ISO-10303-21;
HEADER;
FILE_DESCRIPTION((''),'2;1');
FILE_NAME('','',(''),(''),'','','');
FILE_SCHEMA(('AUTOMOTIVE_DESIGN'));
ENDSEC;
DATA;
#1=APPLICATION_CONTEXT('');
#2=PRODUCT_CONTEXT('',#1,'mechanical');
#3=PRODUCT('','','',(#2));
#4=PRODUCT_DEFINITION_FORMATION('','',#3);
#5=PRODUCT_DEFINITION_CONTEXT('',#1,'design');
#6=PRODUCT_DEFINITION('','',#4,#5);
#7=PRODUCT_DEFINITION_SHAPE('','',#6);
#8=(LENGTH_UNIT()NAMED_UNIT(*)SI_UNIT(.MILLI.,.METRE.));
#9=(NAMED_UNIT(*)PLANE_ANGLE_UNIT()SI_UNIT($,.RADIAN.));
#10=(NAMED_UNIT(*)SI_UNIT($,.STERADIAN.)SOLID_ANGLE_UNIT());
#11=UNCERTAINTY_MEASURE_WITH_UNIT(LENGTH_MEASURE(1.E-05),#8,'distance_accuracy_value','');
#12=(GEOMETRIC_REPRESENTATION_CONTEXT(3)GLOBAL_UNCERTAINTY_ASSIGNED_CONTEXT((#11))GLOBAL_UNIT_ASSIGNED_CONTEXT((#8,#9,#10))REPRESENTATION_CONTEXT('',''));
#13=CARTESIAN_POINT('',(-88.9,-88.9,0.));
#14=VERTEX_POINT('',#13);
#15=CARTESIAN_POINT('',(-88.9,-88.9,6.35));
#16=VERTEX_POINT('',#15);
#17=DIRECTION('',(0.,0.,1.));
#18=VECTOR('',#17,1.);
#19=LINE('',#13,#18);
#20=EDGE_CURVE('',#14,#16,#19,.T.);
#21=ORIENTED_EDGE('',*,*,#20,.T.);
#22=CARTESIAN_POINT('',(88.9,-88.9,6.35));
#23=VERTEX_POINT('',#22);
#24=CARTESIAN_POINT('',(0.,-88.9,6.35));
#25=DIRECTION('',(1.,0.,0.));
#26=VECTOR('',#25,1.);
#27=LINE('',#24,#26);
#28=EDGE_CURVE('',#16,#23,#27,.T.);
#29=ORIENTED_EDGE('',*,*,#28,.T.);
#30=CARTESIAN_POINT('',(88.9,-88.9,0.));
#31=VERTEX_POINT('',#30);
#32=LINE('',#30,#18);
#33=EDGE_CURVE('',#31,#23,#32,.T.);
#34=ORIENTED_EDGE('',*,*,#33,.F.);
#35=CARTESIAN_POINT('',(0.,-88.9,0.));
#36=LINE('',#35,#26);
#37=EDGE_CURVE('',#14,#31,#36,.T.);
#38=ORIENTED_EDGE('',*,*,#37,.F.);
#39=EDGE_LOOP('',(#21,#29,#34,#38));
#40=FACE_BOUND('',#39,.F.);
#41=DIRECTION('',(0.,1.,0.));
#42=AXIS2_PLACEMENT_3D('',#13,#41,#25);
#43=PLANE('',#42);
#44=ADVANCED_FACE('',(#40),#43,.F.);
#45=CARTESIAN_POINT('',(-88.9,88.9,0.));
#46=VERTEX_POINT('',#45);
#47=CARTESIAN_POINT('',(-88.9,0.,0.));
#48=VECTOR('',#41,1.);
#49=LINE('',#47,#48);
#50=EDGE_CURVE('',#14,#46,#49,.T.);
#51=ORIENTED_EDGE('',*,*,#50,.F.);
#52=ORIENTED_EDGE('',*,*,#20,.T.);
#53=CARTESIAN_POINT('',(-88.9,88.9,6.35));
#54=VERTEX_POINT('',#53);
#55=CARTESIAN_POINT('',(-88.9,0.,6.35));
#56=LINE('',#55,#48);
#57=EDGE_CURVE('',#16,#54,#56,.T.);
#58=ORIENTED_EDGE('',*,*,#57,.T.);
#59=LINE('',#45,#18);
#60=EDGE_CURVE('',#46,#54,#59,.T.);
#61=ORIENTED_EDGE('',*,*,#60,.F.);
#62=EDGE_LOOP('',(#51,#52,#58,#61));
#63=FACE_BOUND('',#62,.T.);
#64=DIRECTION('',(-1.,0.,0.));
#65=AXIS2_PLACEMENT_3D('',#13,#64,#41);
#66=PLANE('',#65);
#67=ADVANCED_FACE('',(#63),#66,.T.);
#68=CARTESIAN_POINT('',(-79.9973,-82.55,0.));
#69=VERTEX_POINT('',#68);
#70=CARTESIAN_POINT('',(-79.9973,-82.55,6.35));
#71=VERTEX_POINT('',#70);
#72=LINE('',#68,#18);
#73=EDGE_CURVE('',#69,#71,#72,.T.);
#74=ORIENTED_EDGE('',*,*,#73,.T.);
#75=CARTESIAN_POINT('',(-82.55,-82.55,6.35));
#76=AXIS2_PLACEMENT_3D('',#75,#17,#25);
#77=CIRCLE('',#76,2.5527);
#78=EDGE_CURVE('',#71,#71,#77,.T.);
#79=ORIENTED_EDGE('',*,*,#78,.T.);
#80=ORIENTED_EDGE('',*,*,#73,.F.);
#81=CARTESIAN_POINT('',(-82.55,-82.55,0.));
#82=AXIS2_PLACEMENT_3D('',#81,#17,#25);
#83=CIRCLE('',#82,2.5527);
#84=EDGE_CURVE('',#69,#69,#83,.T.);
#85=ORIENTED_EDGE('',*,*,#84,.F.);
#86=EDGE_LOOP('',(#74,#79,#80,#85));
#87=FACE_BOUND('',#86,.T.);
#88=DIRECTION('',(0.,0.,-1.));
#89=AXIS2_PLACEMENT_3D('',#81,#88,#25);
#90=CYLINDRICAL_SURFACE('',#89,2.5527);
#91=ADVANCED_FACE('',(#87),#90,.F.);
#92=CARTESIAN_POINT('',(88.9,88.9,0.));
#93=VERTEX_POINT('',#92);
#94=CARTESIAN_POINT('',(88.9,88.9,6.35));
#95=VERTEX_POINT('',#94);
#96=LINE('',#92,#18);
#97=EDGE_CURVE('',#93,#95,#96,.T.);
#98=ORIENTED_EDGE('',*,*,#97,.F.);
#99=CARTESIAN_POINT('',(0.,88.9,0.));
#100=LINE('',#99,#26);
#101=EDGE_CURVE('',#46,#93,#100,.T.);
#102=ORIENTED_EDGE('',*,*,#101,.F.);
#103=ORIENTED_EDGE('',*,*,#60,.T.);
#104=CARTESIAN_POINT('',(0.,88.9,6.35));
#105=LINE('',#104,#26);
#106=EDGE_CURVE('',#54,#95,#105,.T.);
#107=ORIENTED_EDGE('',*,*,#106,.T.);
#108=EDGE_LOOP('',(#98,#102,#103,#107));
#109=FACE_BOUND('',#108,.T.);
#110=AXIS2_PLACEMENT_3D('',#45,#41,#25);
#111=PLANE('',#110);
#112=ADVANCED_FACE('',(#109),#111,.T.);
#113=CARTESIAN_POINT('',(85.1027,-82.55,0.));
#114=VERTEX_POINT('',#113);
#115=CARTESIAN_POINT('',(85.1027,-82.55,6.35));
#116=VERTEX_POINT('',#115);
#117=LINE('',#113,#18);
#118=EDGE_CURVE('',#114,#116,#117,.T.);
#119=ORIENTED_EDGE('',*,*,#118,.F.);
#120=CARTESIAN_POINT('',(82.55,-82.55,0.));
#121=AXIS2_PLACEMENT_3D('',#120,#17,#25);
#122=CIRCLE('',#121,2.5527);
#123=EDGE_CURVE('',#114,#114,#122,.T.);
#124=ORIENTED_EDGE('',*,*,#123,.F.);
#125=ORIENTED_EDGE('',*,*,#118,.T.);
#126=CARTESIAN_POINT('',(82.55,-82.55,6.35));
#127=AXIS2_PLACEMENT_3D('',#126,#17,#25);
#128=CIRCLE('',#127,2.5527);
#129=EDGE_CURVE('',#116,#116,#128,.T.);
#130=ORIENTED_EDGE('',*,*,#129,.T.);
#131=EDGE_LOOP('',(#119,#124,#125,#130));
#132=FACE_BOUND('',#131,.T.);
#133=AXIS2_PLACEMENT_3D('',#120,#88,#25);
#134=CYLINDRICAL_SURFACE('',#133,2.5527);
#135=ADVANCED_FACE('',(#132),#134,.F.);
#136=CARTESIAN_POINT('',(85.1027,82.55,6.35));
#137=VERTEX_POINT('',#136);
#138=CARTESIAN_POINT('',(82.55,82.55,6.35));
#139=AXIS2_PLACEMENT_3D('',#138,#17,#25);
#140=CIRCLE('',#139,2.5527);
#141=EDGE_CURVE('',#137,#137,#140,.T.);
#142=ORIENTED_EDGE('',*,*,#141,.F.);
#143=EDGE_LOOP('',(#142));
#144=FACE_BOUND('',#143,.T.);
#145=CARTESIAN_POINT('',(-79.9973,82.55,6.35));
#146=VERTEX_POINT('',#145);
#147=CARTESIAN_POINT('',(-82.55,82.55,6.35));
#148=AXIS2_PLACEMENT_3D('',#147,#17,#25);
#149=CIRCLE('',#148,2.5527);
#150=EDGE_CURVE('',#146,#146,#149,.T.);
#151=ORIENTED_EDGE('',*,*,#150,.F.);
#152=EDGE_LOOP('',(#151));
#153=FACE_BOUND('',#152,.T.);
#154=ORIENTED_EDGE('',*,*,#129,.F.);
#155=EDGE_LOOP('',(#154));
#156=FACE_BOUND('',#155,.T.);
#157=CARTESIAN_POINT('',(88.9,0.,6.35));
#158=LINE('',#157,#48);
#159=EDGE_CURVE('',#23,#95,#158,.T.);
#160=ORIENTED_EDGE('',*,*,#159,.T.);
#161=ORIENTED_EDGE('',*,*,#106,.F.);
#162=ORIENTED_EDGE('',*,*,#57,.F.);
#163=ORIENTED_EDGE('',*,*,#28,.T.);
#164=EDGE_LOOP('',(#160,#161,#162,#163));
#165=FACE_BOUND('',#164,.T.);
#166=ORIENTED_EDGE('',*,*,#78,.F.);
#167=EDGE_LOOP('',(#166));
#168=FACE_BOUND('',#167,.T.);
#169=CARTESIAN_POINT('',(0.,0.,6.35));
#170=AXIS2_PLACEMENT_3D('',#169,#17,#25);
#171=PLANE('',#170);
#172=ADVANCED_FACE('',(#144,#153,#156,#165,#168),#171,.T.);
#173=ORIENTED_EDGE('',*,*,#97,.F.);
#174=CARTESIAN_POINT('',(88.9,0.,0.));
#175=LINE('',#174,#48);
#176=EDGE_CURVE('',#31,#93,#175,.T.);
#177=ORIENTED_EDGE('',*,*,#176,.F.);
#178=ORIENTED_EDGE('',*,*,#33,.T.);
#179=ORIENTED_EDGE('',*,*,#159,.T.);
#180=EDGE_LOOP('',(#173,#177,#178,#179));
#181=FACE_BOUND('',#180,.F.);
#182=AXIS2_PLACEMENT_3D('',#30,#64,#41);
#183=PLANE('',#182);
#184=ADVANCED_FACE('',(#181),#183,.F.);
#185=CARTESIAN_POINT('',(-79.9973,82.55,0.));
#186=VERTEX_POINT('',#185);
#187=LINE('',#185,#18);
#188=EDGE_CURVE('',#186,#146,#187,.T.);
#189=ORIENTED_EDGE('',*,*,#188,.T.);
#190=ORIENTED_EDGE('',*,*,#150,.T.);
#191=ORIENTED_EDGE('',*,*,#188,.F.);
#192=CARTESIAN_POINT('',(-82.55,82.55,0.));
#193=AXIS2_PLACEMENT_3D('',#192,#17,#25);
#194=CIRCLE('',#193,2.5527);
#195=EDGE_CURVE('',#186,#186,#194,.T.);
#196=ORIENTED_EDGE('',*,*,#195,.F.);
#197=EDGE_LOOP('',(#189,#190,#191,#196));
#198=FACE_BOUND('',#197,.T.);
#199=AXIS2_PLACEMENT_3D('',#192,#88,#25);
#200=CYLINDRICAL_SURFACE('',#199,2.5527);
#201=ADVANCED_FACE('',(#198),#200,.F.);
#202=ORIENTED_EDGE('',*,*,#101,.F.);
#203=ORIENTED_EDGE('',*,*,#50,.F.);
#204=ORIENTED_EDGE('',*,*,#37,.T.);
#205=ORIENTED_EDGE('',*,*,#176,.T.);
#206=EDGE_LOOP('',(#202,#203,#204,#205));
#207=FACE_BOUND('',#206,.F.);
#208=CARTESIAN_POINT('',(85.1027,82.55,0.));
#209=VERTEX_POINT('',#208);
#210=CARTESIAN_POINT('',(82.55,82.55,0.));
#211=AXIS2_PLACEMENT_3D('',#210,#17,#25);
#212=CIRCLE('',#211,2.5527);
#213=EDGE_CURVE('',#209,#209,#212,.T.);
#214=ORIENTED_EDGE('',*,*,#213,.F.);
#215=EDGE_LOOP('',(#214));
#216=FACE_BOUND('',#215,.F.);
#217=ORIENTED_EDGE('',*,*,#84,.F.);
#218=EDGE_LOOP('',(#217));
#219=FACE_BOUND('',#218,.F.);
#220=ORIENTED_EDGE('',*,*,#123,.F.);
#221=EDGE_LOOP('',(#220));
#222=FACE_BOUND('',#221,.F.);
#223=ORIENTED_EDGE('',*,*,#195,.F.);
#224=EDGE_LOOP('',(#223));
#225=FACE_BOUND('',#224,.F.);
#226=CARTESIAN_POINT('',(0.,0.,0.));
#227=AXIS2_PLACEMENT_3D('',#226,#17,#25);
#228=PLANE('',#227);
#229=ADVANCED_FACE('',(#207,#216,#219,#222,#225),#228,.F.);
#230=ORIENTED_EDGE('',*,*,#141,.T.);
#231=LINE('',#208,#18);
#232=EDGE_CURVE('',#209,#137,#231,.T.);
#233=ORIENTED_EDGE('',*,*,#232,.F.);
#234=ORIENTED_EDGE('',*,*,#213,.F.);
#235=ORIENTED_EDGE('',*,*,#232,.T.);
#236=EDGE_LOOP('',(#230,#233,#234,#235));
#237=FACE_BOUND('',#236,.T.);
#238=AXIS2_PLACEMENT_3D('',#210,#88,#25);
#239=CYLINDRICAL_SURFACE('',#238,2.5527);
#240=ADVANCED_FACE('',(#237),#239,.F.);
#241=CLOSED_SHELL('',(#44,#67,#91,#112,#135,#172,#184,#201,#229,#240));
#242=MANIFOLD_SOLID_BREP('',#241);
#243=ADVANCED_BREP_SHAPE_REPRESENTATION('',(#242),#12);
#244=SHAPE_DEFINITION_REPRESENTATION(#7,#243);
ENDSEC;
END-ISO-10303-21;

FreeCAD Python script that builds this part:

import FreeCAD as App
import Part
import Sketcher

V = App.Vector
Q = App.Units.Quantity


def add_polygon(sketch, points):
    """Adds a closed chain of lines whose ends are joined by coincident constraints."""
    first, n = sketch.GeometryCount, len(points)
    for a, b in zip(points, points[1:] + points[:1]):
        sketch.addGeometry(Part.LineSegment(App.Vector(*a, 0), App.Vector(*b, 0)), False)
    for i in range(n):
        sketch.addConstraint(Sketcher.Constraint("Coincident", first + i, 2, first + (i + 1) % n, 1))

doc = App.newDocument("Part")
body = doc.addObject("PartDesign::Body", "Body")

sketch1 = doc.addObject("Sketcher::SketchObject", "Sketch")
body.addObject(sketch1)
sketch1.AttachmentSupport = (doc.XY_Plane, [""])
sketch1.MapMode = "FlatFace"
add_polygon(sketch1, [(-88.9, 88.9), (-88.9, -88.9), (88.9, -88.9), (88.9, 88.9)])
sketch1.addGeometry(Part.Circle(V(-82.55, -82.55, 0), V(0, 0, 1), 2.5527), False)
sketch1.addGeometry(Part.Circle(V(82.55, -82.55, 0), V(0, 0, 1), 2.5527), False)
sketch1.addGeometry(Part.Circle(V(-82.55, 82.55, 0), V(0, 0, 1), 2.5527), False)
sketch1.addGeometry(Part.Circle(V(82.55, 82.55, 0), V(0, 0, 1), 2.5527), False)
sketch1.addConstraint(Sketcher.Constraint("Vertical", 0))
sketch1.addConstraint(Sketcher.Constraint("Horizontal", 1))
sketch1.addConstraint(Sketcher.Constraint("Vertical", 2))
sketch1.addConstraint(Sketcher.Constraint("Horizontal", 3))
sketch1.addConstraint(Sketcher.Constraint("Equal", 4, 5))
sketch1.addConstraint(Sketcher.Constraint("Equal", 5, 6))
sketch1.addConstraint(Sketcher.Constraint("Equal", 6, 7))
sketch1.addConstraint(Sketcher.Constraint("Symmetric", 5, 3, 6, 3, -1, 1))
sketch1.addConstraint(Sketcher.Constraint("Symmetric", 4, 3, 7, 3, -1, 1))
sketch1.addConstraint(Sketcher.Constraint("Symmetric", 0, 2, 2, 2, -1, 1))
sketch1.addConstraint(Sketcher.Constraint("Symmetric", 4, 3, 5, 3, -2))
sketch1.addConstraint(Sketcher.Constraint("Equal", 3, 0))
sketch1.addConstraint(Sketcher.Constraint("DistanceX", 1, 1, 1, 2, Q("7 in")))
sketch1.addConstraint(Sketcher.Constraint("Diameter", 4, Q("0.201 in")))
sketch1.addConstraint(Sketcher.Constraint("DistanceX", 4, 3, 5, 3, Q("6.5 in")))
sketch1.addConstraint(Sketcher.Constraint("DistanceY", 4, 3, 6, 3, Q("6.5 in")))
pad1 = doc.addObject("PartDesign::Pad", "Pad")
body.addObject(pad1)
pad1.Profile = sketch1
pad1.Length = Q("0.25 in")

doc.recompute()
